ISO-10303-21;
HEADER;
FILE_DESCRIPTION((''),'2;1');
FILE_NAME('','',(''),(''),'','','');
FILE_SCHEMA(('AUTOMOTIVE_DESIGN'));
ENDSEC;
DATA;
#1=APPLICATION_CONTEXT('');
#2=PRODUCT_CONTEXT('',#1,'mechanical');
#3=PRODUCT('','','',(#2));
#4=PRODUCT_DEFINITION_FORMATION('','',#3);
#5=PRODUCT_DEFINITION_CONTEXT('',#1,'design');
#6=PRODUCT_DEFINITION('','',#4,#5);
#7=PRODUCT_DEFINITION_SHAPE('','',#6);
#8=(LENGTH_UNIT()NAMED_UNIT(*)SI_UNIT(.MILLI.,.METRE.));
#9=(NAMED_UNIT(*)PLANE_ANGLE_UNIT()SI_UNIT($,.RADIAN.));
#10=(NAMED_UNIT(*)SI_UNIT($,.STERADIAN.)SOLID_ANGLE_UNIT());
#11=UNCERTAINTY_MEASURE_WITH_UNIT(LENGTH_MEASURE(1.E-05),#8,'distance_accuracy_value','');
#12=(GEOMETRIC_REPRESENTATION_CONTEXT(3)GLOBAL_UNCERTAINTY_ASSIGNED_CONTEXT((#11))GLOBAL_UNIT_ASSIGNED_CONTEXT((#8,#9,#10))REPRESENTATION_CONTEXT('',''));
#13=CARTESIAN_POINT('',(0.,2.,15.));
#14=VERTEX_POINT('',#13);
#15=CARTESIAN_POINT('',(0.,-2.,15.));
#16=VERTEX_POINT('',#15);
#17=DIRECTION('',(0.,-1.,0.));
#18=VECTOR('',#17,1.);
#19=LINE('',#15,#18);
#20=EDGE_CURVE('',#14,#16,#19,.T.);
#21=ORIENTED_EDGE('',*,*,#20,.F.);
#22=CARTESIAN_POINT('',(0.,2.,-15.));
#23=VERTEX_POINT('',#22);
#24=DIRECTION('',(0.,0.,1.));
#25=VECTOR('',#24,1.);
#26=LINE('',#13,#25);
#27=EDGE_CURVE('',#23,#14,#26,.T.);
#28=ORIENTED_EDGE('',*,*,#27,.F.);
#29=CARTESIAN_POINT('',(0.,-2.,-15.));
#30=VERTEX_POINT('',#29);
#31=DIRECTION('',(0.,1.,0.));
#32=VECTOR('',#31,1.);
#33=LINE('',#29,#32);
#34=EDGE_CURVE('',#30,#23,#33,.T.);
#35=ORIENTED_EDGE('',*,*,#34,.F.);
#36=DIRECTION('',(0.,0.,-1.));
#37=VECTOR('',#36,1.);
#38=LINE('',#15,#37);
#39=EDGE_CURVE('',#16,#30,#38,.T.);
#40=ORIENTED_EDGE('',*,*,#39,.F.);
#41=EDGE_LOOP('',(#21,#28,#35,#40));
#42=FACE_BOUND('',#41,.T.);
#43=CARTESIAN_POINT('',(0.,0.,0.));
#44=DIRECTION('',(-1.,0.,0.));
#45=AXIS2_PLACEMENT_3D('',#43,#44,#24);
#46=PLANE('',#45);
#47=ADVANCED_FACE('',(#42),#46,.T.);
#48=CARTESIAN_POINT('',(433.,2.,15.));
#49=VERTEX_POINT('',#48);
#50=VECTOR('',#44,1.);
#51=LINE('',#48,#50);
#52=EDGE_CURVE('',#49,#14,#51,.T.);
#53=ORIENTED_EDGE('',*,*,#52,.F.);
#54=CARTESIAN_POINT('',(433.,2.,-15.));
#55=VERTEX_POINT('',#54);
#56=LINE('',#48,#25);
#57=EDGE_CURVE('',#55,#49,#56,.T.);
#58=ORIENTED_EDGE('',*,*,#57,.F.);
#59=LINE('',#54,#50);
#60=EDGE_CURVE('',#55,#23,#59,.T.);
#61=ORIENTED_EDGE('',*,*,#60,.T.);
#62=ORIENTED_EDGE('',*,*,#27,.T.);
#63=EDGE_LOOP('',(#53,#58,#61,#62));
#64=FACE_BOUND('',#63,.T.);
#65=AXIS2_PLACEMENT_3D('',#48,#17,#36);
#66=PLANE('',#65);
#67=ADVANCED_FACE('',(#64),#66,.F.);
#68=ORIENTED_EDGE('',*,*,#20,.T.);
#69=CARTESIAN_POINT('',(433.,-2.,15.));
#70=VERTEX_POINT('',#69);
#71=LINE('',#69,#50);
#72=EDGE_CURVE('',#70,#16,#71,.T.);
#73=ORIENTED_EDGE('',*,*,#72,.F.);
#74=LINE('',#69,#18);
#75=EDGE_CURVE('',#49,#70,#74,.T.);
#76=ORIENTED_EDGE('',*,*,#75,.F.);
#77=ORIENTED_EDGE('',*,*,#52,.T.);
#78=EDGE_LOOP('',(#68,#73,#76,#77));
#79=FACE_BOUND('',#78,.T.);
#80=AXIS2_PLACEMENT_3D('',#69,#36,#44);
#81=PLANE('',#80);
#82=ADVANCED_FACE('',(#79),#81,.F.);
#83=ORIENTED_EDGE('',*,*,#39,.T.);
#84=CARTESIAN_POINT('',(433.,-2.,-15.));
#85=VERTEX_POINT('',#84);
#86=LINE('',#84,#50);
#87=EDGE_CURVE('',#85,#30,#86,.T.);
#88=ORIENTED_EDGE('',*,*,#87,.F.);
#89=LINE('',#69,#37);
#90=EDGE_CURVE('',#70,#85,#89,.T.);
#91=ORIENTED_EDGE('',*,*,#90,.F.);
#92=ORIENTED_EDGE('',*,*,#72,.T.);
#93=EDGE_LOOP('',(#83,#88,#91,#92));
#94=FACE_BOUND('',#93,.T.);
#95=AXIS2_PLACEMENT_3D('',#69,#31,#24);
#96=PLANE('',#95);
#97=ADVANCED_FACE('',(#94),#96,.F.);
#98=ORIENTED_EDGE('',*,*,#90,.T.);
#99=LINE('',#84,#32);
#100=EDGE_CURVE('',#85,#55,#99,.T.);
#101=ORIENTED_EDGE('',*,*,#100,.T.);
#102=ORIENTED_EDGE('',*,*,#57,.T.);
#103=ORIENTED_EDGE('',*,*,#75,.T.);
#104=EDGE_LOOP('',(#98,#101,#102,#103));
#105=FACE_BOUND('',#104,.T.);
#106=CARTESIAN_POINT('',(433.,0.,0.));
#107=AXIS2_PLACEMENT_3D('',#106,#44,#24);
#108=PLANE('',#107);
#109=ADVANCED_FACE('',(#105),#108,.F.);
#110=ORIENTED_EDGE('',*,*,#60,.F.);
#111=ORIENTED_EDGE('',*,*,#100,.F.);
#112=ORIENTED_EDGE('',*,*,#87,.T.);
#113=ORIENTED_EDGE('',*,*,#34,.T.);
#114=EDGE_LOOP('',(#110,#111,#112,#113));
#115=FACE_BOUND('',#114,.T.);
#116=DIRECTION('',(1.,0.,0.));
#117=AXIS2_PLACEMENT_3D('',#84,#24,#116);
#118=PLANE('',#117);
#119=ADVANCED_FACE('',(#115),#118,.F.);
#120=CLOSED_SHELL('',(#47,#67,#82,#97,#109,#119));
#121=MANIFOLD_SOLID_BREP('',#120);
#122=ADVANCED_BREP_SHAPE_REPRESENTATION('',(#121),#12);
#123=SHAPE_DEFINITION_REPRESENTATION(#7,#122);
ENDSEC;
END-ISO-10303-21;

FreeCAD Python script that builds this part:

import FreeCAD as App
import Part
import Sketcher

V = App.Vector


def add_polygon(sketch, points):
    """Adds a closed chain of lines whose ends are joined by coincident constraints."""
    first, n = sketch.GeometryCount, len(points)
    for a, b in zip(points, points[1:] + points[:1]):
        sketch.addGeometry(Part.LineSegment(App.Vector(*a, 0), App.Vector(*b, 0)), False)
    for i in range(n):
        sketch.addConstraint(Sketcher.Constraint("Coincident", first + i, 2, first + (i + 1) % n, 1))

doc = App.newDocument("Part")
params = doc.addObject("Spreadsheet::Sheet", "Params")
for row, (alias, value) in enumerate([
    ("sketch1_width", "4 mm"),
    ("sketch1_height", "30 mm"),
    ("pad1_length", "433 mm"),
], start=1):
    params.set(f"A{row}", alias)
    params.set(f"B{row}", "=" + value)
    params.setAlias(f"B{row}", alias)

body = doc.addObject("PartDesign::Body", "Body")

# Sketch on YZ plane
sketch1 = body.newObject("Sketcher::SketchObject", "Sketch")
sketch1.AttachmentSupport = (doc.getObject("YZ_Plane"), [""])
sketch1.MapMode = "FlatFace"
add_polygon(sketch1, [(2, 15), (-2, 15), (-2, -15), (2, -15)])  # lines 0-3
sketch1.addConstraint(Sketcher.Constraint("Horizontal", 0))
sketch1.addConstraint(Sketcher.Constraint("Vertical", 1))
sketch1.addConstraint(Sketcher.Constraint("Horizontal", 2))
sketch1.addConstraint(Sketcher.Constraint("Vertical", 3))
sketch1.addConstraint(Sketcher.Constraint("Symmetric", 0, 2, 2, 2, -1, 1))
sketch1.addConstraint(Sketcher.Constraint("DistanceX", 0, 2, 0, 1, 4.0))
sketch1.addConstraint(Sketcher.Constraint("DistanceY", 1, 2, 1, 1, 30.0))
sketch1.setExpression("Constraints[9]", "Params.sketch1_width")
sketch1.setExpression("Constraints[10]", "Params.sketch1_height")
pad1 = body.newObject("PartDesign::Pad", "Pad")
pad1.Profile = sketch1
pad1.setExpression("Length", "Params.pad1_length")

doc.recompute()
